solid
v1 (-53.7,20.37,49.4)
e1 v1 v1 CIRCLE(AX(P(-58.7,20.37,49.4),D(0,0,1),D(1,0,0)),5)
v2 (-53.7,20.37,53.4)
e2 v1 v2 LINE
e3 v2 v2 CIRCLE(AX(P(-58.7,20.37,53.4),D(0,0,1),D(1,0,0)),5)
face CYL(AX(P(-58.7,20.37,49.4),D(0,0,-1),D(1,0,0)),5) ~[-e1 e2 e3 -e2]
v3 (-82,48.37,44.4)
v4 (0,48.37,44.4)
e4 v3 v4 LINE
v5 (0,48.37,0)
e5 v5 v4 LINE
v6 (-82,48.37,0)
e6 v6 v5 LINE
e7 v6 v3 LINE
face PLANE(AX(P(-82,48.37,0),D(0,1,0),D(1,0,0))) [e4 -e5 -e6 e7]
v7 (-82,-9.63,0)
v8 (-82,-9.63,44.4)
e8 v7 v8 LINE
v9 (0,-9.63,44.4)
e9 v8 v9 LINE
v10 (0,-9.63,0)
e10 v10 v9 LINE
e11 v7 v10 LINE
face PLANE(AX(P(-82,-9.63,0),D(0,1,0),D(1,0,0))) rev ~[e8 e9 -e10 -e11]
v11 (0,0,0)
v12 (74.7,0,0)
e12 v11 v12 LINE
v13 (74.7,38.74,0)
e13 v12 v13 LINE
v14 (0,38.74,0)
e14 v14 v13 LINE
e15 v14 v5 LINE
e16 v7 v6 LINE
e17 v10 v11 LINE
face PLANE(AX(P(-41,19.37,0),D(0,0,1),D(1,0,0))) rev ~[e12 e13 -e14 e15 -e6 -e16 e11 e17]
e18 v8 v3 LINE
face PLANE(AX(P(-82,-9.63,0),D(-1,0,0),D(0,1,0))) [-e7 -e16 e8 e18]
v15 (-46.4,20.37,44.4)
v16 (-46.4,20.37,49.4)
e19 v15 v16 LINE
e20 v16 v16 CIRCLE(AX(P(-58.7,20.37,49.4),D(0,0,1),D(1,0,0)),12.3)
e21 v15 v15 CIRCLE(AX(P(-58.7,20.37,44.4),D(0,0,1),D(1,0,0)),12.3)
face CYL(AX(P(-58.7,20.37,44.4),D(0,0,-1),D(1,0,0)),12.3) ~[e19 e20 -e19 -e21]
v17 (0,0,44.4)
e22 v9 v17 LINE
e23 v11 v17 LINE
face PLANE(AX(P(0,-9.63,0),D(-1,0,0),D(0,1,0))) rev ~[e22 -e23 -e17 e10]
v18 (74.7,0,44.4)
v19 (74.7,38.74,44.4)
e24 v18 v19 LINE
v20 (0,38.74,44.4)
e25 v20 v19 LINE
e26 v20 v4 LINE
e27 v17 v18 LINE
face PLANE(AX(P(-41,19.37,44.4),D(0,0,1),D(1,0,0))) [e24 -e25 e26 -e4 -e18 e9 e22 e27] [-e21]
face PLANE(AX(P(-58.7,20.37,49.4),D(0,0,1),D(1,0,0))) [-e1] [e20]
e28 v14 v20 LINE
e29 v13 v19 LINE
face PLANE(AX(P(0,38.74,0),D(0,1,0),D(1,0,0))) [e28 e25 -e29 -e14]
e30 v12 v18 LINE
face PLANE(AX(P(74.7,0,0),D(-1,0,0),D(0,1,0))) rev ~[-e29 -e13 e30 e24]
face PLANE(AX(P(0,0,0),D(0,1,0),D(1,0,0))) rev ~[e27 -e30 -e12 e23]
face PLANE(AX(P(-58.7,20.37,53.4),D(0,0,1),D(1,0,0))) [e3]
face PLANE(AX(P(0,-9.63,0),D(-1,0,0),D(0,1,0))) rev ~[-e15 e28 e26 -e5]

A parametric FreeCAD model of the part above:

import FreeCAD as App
import Part
import Sketcher

V = App.Vector
Q = App.Units.Quantity


def add_polygon(sketch, points):
    """Adds a closed chain of lines whose ends are joined by coincident constraints."""
    first, n = sketch.GeometryCount, len(points)
    for a, b in zip(points, points[1:] + points[:1]):
        sketch.addGeometry(Part.LineSegment(App.Vector(*a, 0), App.Vector(*b, 0)), False)
    for i in range(n):
        sketch.addConstraint(Sketcher.Constraint("Coincident", first + i, 2, first + (i + 1) % n, 1))

doc = App.newDocument("Part")
body = doc.addObject("PartDesign::Body", "Body")

# Sketch on XY plane
sketch1 = body.newObject("Sketcher::SketchObject", "Sketch")
sketch1.AttachmentSupport = (doc.getObject("XY_Plane"), [""])
sketch1.MapMode = "FlatFace"
sketch1.AttachmentOffset = App.Placement(V(0, 0, 49.4), App.Rotation())
sketch1.addGeometry(Part.Circle(V(-59, 20, 0), V(0, 0, 1), 5), False)
sketch1.addConstraint([
    Sketcher.Constraint("Diameter", 0, Q("10 mm")),
    Sketcher.Constraint("DistanceX", 0, 3, -1, 1, Q("58.7 mm")),
    Sketcher.Constraint("DistanceY", -1, 1, 0, 3, Q("20.37 mm")),
])
pad1 = body.newObject("PartDesign::Pad", "Pad")
pad1.Profile = sketch1
pad1.Length = 4
body2 = doc.addObject("PartDesign::Body", "Body001")

# Sketch on XY plane
sketch2 = body2.newObject("Sketcher::SketchObject", "Sketch001")
sketch2.AttachmentSupport = (doc.getObject("XY_Plane001"), [""])
sketch2.MapMode = "FlatFace"
sketch2.AttachmentOffset = App.Placement(V(0, 0, 44.4), App.Rotation())
sketch2.addGeometry(Part.Circle(V(-59, 20, 0), V(0, 0, 1), 12), False)
sketch2.addConstraint([
    Sketcher.Constraint("Diameter", 0, Q("24.6 mm")),
    Sketcher.Constraint("DistanceX", 0, 3, -1, 1, Q("58.7 mm")),
    Sketcher.Constraint("DistanceY", -1, 1, 0, 3, Q("20.37 mm")),
])
pad2 = body2.newObject("PartDesign::Pad", "Pad001")
pad2.Profile = sketch2
pad2.Length = 5
body3 = doc.addObject("PartDesign::Body", "Body002")

# Sketch on XY plane
sketch3 = body3.newObject("Sketcher::SketchObject", "Sketch002")
sketch3.AttachmentSupport = (doc.getObject("XY_Plane002"), [""])
sketch3.MapMode = "FlatFace"
add_polygon(sketch3, [(-82, 48), (-82, -10), (0, -10), (0, 48)])  # lines 0-3
sketch3.addConstraint([
    Sketcher.Constraint("Vertical", 0),
    Sketcher.Constraint("Horizontal", 1),
    Sketcher.Constraint("Vertical", 2),
    Sketcher.Constraint("Horizontal", 3),
    Sketcher.Constraint("PointOnObject", 1, 2, -2),
    Sketcher.Constraint("DistanceX", 1, 1, 1, 2, Q("82 mm")),
    Sketcher.Constraint("DistanceY", 0, 2, 0, 1, Q("58 mm")),
    Sketcher.Constraint("DistanceY", 0, 2, -1, 1, Q("9.63 mm")),
])
pad3 = body3.newObject("PartDesign::Pad", "Pad002")
pad3.Profile = sketch3
pad3.Length = 44.4
body4 = doc.addObject("PartDesign::Body", "Body003")

# Sketch on XY plane
sketch4 = body4.newObject("Sketcher::SketchObject", "Sketch003")
sketch4.AttachmentSupport = (doc.getObject("XY_Plane003"), [""])
sketch4.MapMode = "FlatFace"
add_polygon(sketch4, [(0, 39), (0, 0), (75, 0), (75, 39)])  # lines 0-3
sketch4.addConstraint([
    Sketcher.Constraint("Vertical", 0),
    Sketcher.Constraint("Horizontal", 1),
    Sketcher.Constraint("Vertical", 2),
    Sketcher.Constraint("Horizontal", 3),
    Sketcher.Constraint("Coincident", 0, 2, -1, 1),
    Sketcher.Constraint("DistanceX", 1, 1, 1, 2, Q("74.7 mm")),
    Sketcher.Constraint("DistanceY", 0, 2, 0, 1, Q("38.74 mm")),
])
pad4 = body4.newObject("PartDesign::Pad", "Pad003")
pad4.Profile = sketch4
pad4.Length = 44.4
doc.recompute()

boolean = body4.newObject("PartDesign::Boolean", "Boolean")
boolean.Type = "Fuse"
boolean.addObjects([body3])
doc.recompute()

boolean2 = body4.newObject("PartDesign::Boolean", "Boolean001")
boolean2.Type = "Fuse"
boolean2.addObjects([body2])
doc.recompute()

boolean3 = body4.newObject("PartDesign::Boolean", "Boolean002")
boolean3.Type = "Fuse"
boolean3.addObjects([body])

doc.recompute()
